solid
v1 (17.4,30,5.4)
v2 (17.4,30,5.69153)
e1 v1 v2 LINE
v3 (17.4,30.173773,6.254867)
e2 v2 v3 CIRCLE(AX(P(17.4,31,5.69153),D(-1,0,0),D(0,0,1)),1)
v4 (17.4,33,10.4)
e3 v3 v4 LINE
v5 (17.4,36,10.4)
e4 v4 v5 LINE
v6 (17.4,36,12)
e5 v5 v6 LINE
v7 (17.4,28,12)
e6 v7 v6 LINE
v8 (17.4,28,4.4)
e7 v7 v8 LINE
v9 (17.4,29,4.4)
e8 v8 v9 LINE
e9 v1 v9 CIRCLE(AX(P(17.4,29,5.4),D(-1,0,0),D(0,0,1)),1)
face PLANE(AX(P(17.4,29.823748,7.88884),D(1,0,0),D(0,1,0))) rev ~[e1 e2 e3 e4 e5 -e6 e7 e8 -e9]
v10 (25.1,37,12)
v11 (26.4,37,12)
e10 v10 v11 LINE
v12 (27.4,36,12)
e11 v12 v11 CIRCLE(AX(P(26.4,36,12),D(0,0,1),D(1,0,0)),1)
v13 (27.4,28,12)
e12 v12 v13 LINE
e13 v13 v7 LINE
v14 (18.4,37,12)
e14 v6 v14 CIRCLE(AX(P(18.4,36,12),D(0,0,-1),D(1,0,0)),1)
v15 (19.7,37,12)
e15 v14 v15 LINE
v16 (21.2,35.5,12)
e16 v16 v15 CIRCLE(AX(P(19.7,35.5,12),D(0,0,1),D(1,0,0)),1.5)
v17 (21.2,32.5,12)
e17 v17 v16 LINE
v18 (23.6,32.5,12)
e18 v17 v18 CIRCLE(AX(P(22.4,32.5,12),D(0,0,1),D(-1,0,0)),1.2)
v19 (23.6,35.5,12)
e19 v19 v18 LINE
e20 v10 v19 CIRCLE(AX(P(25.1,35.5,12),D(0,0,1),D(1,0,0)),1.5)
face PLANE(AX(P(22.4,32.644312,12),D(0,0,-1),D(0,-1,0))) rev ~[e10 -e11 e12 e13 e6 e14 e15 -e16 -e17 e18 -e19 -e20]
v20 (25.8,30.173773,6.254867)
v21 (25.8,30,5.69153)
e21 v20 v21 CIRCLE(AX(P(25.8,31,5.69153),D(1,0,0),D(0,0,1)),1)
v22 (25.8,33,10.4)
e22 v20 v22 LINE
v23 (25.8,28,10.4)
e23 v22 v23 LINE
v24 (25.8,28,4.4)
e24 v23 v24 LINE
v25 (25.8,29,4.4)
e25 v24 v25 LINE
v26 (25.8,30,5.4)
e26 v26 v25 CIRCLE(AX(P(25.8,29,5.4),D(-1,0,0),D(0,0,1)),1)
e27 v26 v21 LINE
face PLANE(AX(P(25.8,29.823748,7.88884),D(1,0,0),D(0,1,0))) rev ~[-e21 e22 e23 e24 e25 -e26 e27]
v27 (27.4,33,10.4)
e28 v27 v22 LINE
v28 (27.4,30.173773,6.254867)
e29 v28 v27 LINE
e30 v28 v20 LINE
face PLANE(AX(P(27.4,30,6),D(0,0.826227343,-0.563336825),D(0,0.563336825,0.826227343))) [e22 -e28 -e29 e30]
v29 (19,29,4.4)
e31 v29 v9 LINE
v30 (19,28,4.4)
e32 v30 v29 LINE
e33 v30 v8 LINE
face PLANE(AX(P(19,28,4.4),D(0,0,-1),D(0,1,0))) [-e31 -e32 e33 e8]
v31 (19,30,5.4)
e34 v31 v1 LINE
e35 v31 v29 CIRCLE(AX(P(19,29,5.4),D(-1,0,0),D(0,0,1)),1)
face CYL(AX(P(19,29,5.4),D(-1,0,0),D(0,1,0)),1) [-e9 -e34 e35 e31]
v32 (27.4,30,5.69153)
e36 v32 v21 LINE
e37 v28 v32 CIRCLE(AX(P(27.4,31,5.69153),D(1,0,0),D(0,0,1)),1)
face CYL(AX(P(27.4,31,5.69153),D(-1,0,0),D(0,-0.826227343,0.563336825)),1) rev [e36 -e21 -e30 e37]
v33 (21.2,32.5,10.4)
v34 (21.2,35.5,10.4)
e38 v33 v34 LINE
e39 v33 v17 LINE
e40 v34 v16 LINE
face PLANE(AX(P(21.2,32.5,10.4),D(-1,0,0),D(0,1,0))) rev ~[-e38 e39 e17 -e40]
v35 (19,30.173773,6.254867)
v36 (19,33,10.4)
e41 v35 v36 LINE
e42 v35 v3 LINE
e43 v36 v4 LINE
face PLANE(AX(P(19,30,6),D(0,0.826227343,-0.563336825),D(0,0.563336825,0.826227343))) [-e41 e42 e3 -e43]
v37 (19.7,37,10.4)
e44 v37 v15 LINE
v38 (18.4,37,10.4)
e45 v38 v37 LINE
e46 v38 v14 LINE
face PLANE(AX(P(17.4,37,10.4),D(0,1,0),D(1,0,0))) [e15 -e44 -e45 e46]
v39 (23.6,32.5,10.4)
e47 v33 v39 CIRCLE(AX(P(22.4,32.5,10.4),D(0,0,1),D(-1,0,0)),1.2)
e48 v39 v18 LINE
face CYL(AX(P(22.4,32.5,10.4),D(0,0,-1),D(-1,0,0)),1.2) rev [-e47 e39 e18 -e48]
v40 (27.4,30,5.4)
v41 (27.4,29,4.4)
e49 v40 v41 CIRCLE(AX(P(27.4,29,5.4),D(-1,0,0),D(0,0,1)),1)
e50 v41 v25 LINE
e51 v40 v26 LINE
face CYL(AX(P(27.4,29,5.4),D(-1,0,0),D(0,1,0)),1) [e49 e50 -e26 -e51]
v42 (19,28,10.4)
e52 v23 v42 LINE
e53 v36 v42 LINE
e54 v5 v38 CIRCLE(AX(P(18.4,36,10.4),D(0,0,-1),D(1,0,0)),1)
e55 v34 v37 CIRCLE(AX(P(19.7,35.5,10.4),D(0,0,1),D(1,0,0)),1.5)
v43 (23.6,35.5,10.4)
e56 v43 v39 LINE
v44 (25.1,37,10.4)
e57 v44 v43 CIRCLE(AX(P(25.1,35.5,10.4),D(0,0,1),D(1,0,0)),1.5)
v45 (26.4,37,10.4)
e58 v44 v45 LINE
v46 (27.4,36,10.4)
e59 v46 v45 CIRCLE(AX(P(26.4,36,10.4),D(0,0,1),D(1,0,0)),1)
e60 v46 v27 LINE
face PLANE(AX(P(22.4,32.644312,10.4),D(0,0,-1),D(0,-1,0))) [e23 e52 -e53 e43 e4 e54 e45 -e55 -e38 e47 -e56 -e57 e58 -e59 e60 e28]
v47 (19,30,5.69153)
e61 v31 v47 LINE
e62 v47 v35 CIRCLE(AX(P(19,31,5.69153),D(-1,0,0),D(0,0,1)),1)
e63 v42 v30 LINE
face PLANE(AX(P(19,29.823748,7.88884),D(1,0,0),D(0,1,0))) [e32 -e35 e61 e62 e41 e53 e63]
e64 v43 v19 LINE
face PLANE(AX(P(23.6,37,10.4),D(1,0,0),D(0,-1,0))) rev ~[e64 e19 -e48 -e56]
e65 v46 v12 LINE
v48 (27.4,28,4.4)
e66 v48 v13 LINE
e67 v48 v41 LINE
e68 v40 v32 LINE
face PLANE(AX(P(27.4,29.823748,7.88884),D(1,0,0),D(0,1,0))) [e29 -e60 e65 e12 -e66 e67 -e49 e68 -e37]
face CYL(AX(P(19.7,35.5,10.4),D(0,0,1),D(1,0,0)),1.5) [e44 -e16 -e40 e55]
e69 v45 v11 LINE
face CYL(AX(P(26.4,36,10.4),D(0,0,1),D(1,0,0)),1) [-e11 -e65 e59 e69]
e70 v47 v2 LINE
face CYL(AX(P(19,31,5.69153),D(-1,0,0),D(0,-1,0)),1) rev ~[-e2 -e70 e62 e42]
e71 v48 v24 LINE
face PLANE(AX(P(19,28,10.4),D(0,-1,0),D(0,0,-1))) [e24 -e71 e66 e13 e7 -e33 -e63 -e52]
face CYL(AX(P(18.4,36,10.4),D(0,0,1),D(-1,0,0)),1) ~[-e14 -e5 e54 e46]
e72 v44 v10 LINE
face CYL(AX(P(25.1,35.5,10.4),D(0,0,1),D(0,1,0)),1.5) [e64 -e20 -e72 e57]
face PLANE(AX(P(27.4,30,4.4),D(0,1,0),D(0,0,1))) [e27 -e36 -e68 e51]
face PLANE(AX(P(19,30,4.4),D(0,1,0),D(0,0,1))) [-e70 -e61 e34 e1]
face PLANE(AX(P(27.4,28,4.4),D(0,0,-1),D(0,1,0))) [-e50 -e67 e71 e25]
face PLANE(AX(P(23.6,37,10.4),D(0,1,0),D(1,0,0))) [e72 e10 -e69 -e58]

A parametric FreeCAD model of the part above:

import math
import FreeCAD as App
import Part
import Sketcher

V = App.Vector


def edges_at(feature, points):
    """Names of the edges that pass closest to the given points."""
    edges = feature.Shape.Edges
    near = lambda p: min(range(len(edges)), key=lambda i: edges[i].distToShape(Part.Vertex(*p))[0])
    return sorted({f"Edge{near(p) + 1}" for p in points})

doc = App.newDocument("Part")
body = doc.addObject("PartDesign::Body", "Body")

# Sketch on XY plane
sketch1 = body.newObject("Sketcher::SketchObject", "Sketch")
sketch1.AttachmentSupport = (doc.getObject("XY_Plane"), [""])
sketch1.MapMode = "FlatFace"
sketch1.addGeometry([
    Part.LineSegment(V(4.5, 5, 0), V(-4.5, 5, 0)),  # 0
    Part.LineSegment(V(-4.5, 5, 0), V(-4.5, -5, 0)),  # 1
    Part.LineSegment(V(-4.5, -5, 0), V(4.5, -5, 0)),  # 2
    Part.LineSegment(V(4.5, -5, 0), V(4.5, -1.2, 0)),  # 3
    Part.LineSegment(V(4.5, -1.2, 0), V(0, -1.2, 0)),  # 4
    Part.ArcOfCircle(Part.Circle(V(0, 0, 0), V(0, 0, 1), 1.2), math.radians(90), math.radians(270)),  # 5
    Part.LineSegment(V(0, 1.2, 0), V(4.5, 1.2, 0)),  # 6
    Part.LineSegment(V(4.5, 1.2, 0), V(4.5, 5, 0)),  # 7
], False)
sketch1.addConstraint([
    Sketcher.Constraint("Coincident", 0, 2, 1, 1),
    Sketcher.Constraint("Coincident", 1, 2, 2, 1),
    Sketcher.Constraint("Coincident", 2, 2, 3, 1),
    Sketcher.Constraint("Coincident", 3, 2, 4, 1),
    Sketcher.Constraint("Tangent", 4, 2, 5, 2),
    Sketcher.Constraint("Tangent", 5, 1, 6, 1),
    Sketcher.Constraint("Coincident", 6, 2, 7, 1),
    Sketcher.Constraint("Coincident", 7, 2, 0, 1),
    Sketcher.Constraint("Horizontal", 0),
    Sketcher.Constraint("Vertical", 1),
    Sketcher.Constraint("Horizontal", 2),
    Sketcher.Constraint("Vertical", 3),
    Sketcher.Constraint("Horizontal", 4),
    Sketcher.Constraint("Horizontal", 6),
    Sketcher.Constraint("Vertical", 7),
    Sketcher.Constraint("Coincident", 5, 3, -1, 1),
    Sketcher.Constraint("Symmetric", 0, 2, 2, 2, -1, 1),
    Sketcher.Constraint("Vertical", 3, 2, 6, 2),
    Sketcher.Constraint("Radius", 5, 1.2),
    Sketcher.Constraint("DistanceX", 0, 2, 0, 1, 9.0),
    Sketcher.Constraint("DistanceY", 1, 2, 1, 1, 10.0),
])
pad1 = body.newObject("PartDesign::Pad", "Pad")
pad1.Profile = sketch1
pad1.Length = 1.6

# Sketch on XZ plane
sketch2 = body.newObject("Sketcher::SketchObject", "Sketch001")
sketch2.AttachmentSupport = (doc.getObject("XZ_Plane"), [""])
sketch2.MapMode = "FlatFace"
sketch2.AttachmentOffset = App.Placement(V(0, 0, 5), App.Rotation())
sketch2.addGeometry([
    Part.LineSegment(V(-4.5, 0, 0), V(-4.5, -6, 0)),  # 0
    Part.LineSegment(V(-4.5, -6, 0), V(-2.5, -6, 0)),  # 1
    Part.LineSegment(V(-2.5, -6, 0), V(-2.5, -4.4, 0)),  # 2
    Part.LineSegment(V(-2.5, -4.4, 0), V(0.5, 0, 0)),  # 3
    Part.LineSegment(V(0.5, 0, 0), V(-4.5, 0, 0)),  # 4
], False)
sketch2.addConstraint([
    Sketcher.Constraint("Coincident", 0, 2, 1, 1),
    Sketcher.Constraint("Coincident", 1, 2, 2, 1),
    Sketcher.Constraint("Coincident", 2, 2, 3, 1),
    Sketcher.Constraint("Coincident", 3, 2, 4, 1),
    Sketcher.Constraint("Coincident", 4, 2, 0, 1),
    Sketcher.Constraint("Vertical", 0),
    Sketcher.Constraint("Horizontal", 1),
    Sketcher.Constraint("Vertical", 2),
    Sketcher.Constraint("Horizontal", 4),
    Sketcher.Constraint("PointOnObject", 3, 2, -1),
    Sketcher.Constraint("DistanceX", 1, 1, 1, 2, 2.0),
    Sketcher.Constraint("DistanceX", 4, 2, 4, 1, 5.0),
    Sketcher.Constraint("DistanceY", 0, 2, 0, 1, 6.0),
    Sketcher.Constraint("DistanceY", 2, 1, 2, 2, 1.6),
    Sketcher.Constraint("DistanceX", 0, 2, -1, 1, 4.5),
])
pad2 = body.newObject("PartDesign::Pad", "Pad001")
pad2.Profile = sketch2
pad2.Length = 1.6
pad2.Reversed = True
doc.recompute()

linearpattern = body.newObject("PartDesign::LinearPattern", "LinearPattern")
linearpattern.Originals = [pad2]
linearpattern.Direction = (doc.getObject("Y_Axis"), [""])
linearpattern.Mode = "offset"
linearpattern.Offset = 8.4
linearpattern.Occurrences = 2
body.Tip = linearpattern
doc.recompute()

fillet = body.newObject("PartDesign::Fillet", "Fillet")
fillet.Base = (linearpattern, edges_at(linearpattern, [(-2.5, -4.2, -6), (-2.5, 4.2, -6)]))
fillet.Radius = 1
doc.recompute()

fillet2 = body.newObject("PartDesign::Fillet", "Fillet001")
fillet2.Base = (fillet, edges_at(fillet, [(-2.5, -4.2, -4.4), (-2.5, 4.2, -4.4)]))
fillet2.Radius = 1
doc.recompute()

fillet3 = body.newObject("PartDesign::Fillet", "Fillet002")
fillet3.Base = (fillet2, edges_at(fillet2, [(4.5, -5, 0.8), (4.5, 5, 0.8)]))
fillet3.Radius = 1
doc.recompute()

fillet4 = body.newObject("PartDesign::Fillet", "Fillet003")
fillet4.Base = (fillet3, edges_at(fillet3, [(4.5, -1.2, 0.8), (4.5, 1.2, 0.8)]))
fillet4.Radius = 1.5
body2 = doc.addObject("PartDesign::Body", "Body001")
doc.recompute()

body.Placement = App.Placement(V(22.4, 32.5, 10.4), App.Rotation(V(0, 0, 1), 90))
boolean = body2.newObject("PartDesign::Boolean", "Boolean")
boolean.Type = "Fuse"
boolean.addObjects([body])

doc.recompute()
